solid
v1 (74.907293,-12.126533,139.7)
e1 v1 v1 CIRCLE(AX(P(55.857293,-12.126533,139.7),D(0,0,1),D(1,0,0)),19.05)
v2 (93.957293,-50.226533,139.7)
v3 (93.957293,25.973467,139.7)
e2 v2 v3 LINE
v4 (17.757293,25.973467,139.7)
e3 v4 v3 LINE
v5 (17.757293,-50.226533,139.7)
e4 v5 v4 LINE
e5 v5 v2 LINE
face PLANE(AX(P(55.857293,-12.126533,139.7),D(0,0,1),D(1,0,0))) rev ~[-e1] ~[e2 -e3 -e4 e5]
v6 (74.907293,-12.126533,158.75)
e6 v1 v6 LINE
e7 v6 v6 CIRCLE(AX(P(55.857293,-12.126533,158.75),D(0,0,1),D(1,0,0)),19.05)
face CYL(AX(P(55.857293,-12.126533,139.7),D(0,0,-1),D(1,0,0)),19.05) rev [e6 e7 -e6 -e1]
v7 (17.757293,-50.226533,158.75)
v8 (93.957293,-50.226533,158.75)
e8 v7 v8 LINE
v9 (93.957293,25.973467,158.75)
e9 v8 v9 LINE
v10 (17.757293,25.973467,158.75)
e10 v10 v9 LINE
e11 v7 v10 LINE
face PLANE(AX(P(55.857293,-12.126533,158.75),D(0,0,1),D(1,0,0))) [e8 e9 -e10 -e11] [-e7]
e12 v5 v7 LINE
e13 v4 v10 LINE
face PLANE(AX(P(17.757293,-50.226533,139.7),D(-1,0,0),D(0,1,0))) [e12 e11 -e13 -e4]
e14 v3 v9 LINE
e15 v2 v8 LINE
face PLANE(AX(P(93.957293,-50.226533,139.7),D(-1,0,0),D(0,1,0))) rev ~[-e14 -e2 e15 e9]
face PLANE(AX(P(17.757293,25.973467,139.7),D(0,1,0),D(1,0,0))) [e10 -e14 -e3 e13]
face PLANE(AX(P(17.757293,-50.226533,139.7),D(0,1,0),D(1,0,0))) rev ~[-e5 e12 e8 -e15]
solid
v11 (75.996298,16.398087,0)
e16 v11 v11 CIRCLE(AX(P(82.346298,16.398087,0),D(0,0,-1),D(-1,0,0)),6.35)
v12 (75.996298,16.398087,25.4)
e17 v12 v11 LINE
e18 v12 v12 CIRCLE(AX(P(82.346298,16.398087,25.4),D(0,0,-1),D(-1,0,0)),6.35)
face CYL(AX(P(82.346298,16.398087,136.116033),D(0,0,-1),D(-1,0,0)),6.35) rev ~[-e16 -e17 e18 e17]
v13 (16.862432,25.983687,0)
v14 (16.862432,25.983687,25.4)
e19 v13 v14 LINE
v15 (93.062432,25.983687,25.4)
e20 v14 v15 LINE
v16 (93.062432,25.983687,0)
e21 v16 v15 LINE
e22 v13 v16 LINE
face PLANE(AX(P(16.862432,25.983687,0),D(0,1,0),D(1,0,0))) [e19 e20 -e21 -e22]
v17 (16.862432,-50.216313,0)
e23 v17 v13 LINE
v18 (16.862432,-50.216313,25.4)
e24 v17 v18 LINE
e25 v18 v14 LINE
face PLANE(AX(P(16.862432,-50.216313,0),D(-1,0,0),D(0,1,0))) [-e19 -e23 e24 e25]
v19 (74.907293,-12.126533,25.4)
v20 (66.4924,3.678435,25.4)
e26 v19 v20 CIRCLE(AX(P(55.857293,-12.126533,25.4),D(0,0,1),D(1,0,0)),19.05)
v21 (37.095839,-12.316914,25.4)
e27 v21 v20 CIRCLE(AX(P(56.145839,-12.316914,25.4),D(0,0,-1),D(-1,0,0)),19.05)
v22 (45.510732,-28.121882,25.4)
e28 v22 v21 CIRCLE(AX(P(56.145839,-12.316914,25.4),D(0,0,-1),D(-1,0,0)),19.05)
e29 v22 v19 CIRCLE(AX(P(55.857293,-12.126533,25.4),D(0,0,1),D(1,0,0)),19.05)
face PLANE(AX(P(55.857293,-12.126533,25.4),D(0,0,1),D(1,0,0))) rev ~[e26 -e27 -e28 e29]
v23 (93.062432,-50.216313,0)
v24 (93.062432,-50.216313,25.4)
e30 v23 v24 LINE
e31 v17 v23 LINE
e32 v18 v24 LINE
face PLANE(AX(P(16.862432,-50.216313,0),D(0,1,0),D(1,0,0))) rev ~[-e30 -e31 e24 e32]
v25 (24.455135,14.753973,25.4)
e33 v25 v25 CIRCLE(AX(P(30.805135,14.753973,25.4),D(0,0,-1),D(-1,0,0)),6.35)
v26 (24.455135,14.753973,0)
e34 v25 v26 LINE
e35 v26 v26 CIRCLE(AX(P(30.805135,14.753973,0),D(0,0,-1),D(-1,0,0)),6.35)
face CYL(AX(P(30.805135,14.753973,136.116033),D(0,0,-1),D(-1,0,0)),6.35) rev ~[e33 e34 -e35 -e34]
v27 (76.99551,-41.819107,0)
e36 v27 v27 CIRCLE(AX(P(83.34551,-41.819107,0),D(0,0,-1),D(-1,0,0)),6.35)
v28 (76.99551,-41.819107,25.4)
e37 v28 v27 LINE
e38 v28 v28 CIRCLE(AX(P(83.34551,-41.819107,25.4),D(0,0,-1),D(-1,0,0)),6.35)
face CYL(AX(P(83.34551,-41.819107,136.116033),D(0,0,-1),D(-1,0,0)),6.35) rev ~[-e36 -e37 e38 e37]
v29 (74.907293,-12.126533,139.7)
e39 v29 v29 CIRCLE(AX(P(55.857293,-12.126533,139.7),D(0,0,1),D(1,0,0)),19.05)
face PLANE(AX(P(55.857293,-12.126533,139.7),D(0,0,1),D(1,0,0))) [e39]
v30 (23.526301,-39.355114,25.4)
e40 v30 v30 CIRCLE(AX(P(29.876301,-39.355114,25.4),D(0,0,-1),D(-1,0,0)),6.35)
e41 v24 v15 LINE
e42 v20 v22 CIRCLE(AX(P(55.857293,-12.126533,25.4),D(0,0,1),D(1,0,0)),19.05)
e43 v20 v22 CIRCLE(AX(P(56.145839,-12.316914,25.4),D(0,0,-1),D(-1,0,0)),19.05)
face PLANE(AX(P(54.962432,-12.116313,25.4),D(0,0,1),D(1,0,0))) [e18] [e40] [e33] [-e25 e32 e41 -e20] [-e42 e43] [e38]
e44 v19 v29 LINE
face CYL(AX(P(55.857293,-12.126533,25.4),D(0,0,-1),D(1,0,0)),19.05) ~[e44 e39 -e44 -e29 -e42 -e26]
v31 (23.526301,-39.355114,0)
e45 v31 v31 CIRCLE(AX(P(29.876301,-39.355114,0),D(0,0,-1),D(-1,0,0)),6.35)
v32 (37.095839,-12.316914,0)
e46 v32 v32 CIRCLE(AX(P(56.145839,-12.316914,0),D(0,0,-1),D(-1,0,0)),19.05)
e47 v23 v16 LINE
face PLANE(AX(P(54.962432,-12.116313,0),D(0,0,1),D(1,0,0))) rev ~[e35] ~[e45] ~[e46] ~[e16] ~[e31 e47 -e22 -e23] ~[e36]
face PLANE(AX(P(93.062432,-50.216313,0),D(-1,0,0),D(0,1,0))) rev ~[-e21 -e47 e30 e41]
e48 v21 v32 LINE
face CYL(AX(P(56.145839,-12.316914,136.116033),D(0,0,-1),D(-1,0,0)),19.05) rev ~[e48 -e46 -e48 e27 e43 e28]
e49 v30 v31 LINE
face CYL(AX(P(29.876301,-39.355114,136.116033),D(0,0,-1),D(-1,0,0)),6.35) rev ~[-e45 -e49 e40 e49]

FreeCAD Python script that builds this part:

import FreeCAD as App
import Part
import Sketcher
from FreeCAD import Vector
Q = App.Units.Quantity


def add_polygon(sketch, points):
    """Adds a closed chain of lines whose ends are joined by coincident constraints."""
    first, n = sketch.GeometryCount, len(points)
    for a, b in zip(points, points[1:] + points[:1]):
        sketch.addGeometry(Part.LineSegment(App.Vector(*a, 0), App.Vector(*b, 0)), False)
    for i in range(n):
        sketch.addConstraint(Sketcher.Constraint("Coincident", first + i, 2, first + (i + 1) % n, 1))

doc = App.newDocument("Part")
params = doc.addObject("Spreadsheet::Sheet", "Params")
for row, (alias, value) in enumerate([
    ("sketch1_width", "3 in"),
    ("pad1_length", "1 in"),
    ("sketch2_diameter", "1.5 in"),
    ("hole_diameter", "1.5 in"),
    ("sketch3_diameter", "0.5 in"),
    ("hole2_diameter", "0.5 in"),
    ("sketch4_diameter", "1.5 in"),
    ("pad2_length", "4.5 in"),
    ("sketch5_diameter", "1.5 in"),
    ("sketch5_width", "3 in"),
    ("pad3_length", "1 in"),
    ("sketch6_diameter", "1.5 in"),
    ("sketch6_width", "3 in"),
    ("pad4_length", "0.75 in"),
], start=1):
    params.set(f"A{row}", alias)
    params.set(f"B{row}", "=" + value)
    params.setAlias(f"B{row}", alias)

body = doc.addObject("PartDesign::Body", "Body")

# Sketch on XY plane
sketch1 = body.newObject("Sketcher::SketchObject", "Sketch")
sketch1.AttachmentSupport = (doc.getObject("XY_Plane"), [""])
sketch1.MapMode = "FlatFace"
add_polygon(sketch1, [(17, 26), (17, -50), (93, -50), (93, 26)])  # lines 0-3
sketch1.addConstraint([
    Sketcher.Constraint("Vertical", 0),
    Sketcher.Constraint("Horizontal", 1),
    Sketcher.Constraint("Vertical", 2),
    Sketcher.Constraint("Horizontal", 3),
    Sketcher.Constraint("Equal", 3, 0),
    Sketcher.Constraint("DistanceX", 1, 1, 1, 2, Q("3 in")),
    Sketcher.Constraint("DistanceX", -1, 1, 0, 2, 16.862432),
    Sketcher.Constraint("DistanceY", 0, 2, -1, 1, 50.216313),
])
sketch1.setExpression("Constraints[9]", "Params.sketch1_width")
pad1 = body.newObject("PartDesign::Pad", "Pad")
pad1.Profile = sketch1
pad1.setExpression("Length", "Params.pad1_length")

# Sketch on XY plane
sketch2 = body.newObject("Sketcher::SketchObject", "Sketch001")
sketch2.AttachmentSupport = (doc.getObject("XY_Plane"), [""])
sketch2.MapMode = "FlatFace"
sketch2.AttachmentOffset = App.Placement(Vector(0, 0, 1 * 25.4), App.Rotation())
sketch2.addGeometry(Part.Circle(Vector(56, -12, 0), Vector(0, 0, 1), 19), False)
sketch2.addConstraint([
    Sketcher.Constraint("Diameter", 0, Q("1.5 in")),
    Sketcher.Constraint("DistanceX", -1, 1, 0, 3, 56.145839),
    Sketcher.Constraint("DistanceY", 0, 3, -1, 1, 12.316914),
])
sketch2.setExpression("Constraints[0]", "Params.sketch2_diameter")
doc.recompute()
hole = body.newObject("PartDesign::Hole", "Hole")
hole.Profile = sketch2
hole.ThreadType = "None"
hole.setExpression("Diameter", "Params.hole_diameter")
hole.DepthType = "ThroughAll"

# Sketch on XY plane
sketch3 = body.newObject("Sketcher::SketchObject", "Sketch002")
sketch3.AttachmentSupport = (doc.getObject("XY_Plane"), [""])
sketch3.MapMode = "FlatFace"
sketch3.AttachmentOffset = App.Placement(Vector(0, 0, 1 * 25.4), App.Rotation())
sketch3.addGeometry([
    Part.Circle(Vector(83, -42, 0), Vector(0, 0, 1), 6),
    Part.Circle(Vector(30, -39, 0), Vector(0, 0, 1), 6),
    Part.Circle(Vector(31, 15, 0), Vector(0, 0, 1), 6),
    Part.Circle(Vector(82, 16, 0), Vector(0, 0, 1), 6),
], False)
sketch3.addConstraint([
    Sketcher.Constraint("Equal", 0, 1),
    Sketcher.Constraint("Equal", 1, 2),
    Sketcher.Constraint("Equal", 2, 3),
    Sketcher.Constraint("Diameter", 0, Q("0.5 in")),
    Sketcher.Constraint("DistanceX", -1, 1, 1, 3, 29.876301),
    Sketcher.Constraint("DistanceX", -1, 1, 3, 3, 82.346298),
    Sketcher.Constraint("DistanceY", 1, 3, 3, 3, 55.753201),
    Sketcher.Constraint("DistanceX", -1, 1, 0, 3, 83.34551),
    Sketcher.Constraint("DistanceY", 0, 3, 2, 3, 56.57308),
    Sketcher.Constraint("DistanceY", 0, 3, -1, 1, 41.819107),
    Sketcher.Constraint("DistanceY", 1, 3, -1, 1, 39.355114),
    Sketcher.Constraint("DistanceX", -1, 1, 2, 3, 30.805135),
])
sketch3.setExpression("Constraints[3]", "Params.sketch3_diameter")
doc.recompute()
hole2 = body.newObject("PartDesign::Hole", "Hole001")
hole2.Profile = sketch3
hole2.ThreadType = "None"
hole2.setExpression("Diameter", "Params.hole2_diameter")
hole2.DepthType = "ThroughAll"

# Sketch on XY plane
sketch4 = body.newObject("Sketcher::SketchObject", "Sketch003")
sketch4.AttachmentSupport = (doc.getObject("XY_Plane"), [""])
sketch4.MapMode = "FlatFace"
sketch4.AttachmentOffset = App.Placement(Vector(0, 0, 1 * 25.4), App.Rotation())
sketch4.addGeometry(Part.Circle(Vector(56, -12, 0), Vector(0, 0, 1), 19), False)
sketch4.addConstraint([
    Sketcher.Constraint("Diameter", 0, Q("1.5 in")),
    Sketcher.Constraint("DistanceX", -1, 1, 0, 3, 55.857293),
    Sketcher.Constraint("DistanceY", 0, 3, -1, 1, 12.126533),
])
sketch4.setExpression("Constraints[0]", "Params.sketch4_diameter")
pad2 = body.newObject("PartDesign::Pad", "Pad001")
pad2.Profile = sketch4
pad2.setExpression("Length", "Params.pad2_length")
body2 = doc.addObject("PartDesign::Body", "Body001")

# Sketch on XY plane
sketch5 = body2.newObject("Sketcher::SketchObject", "Sketch004")
sketch5.AttachmentSupport = (doc.getObject("XY_Plane001"), [""])
sketch5.MapMode = "FlatFace"
sketch5.AttachmentOffset = App.Placement(Vector(0, 0, 5.5 * 25.4), App.Rotation())
add_polygon(sketch5, [(18, 26), (18, -50), (94, -50), (94, 26)])  # lines 0-3
sketch5.addGeometry(Part.Circle(Vector(56, -12, 0), Vector(0, 0, 1), 19), False)  # 4
sketch5.addConstraint([
    Sketcher.Constraint("Vertical", 0),
    Sketcher.Constraint("Horizontal", 1),
    Sketcher.Constraint("Vertical", 2),
    Sketcher.Constraint("Horizontal", 3),
    Sketcher.Constraint("Equal", 3, 0),
    Sketcher.Constraint("Diameter", 4, Q("1.5 in")),
    Sketcher.Constraint("DistanceX", 1, 1, 1, 2, Q("3 in")),
    Sketcher.Constraint("DistanceX", 0, 2, 4, 3, Q("1.5 in")),
    Sketcher.Constraint("DistanceY", 0, 2, 4, 3, Q("1.5 in")),
    Sketcher.Constraint("DistanceX", -1, 1, 4, 3, 55.857293),
    Sketcher.Constraint("DistanceY", 4, 3, -1, 1, 12.126533),
])
sketch5.setExpression("Constraints[9]", "Params.sketch5_diameter")
sketch5.setExpression("Constraints[10]", "Params.sketch5_width")
pad3 = body2.newObject("PartDesign::Pad", "Pad002")
pad3.Profile = sketch5
pad3.setExpression("Length", "Params.pad3_length")
body3 = doc.addObject("PartDesign::Body", "Body002")

# Sketch on XY plane
sketch6 = body3.newObject("Sketcher::SketchObject", "Sketch005")
sketch6.AttachmentSupport = (doc.getObject("XY_Plane002"), [""])
sketch6.MapMode = "FlatFace"
sketch6.AttachmentOffset = App.Placement(Vector(0, 0, 5.5 * 25.4), App.Rotation())
add_polygon(sketch6, [(18, 26), (18, -50), (94, -50), (94, 26)])  # lines 0-3
sketch6.addGeometry(Part.Circle(Vector(56, -12, 0), Vector(0, 0, 1), 19), False)  # 4
sketch6.addConstraint([
    Sketcher.Constraint("Vertical", 0),
    Sketcher.Constraint("Horizontal", 1),
    Sketcher.Constraint("Vertical", 2),
    Sketcher.Constraint("Horizontal", 3),
    Sketcher.Constraint("Equal", 3, 0),
    Sketcher.Constraint("Diameter", 4, Q("1.5 in")),
    Sketcher.Constraint("DistanceX", 1, 1, 1, 2, Q("3 in")),
    Sketcher.Constraint("DistanceX", 0, 2, 4, 3, Q("1.5 in")),
    Sketcher.Constraint("DistanceY", 0, 2, 4, 3, Q("1.5 in")),
    Sketcher.Constraint("DistanceX", -1, 1, 4, 3, 55.857293),
    Sketcher.Constraint("DistanceY", 4, 3, -1, 1, 12.126533),
])
sketch6.setExpression("Constraints[9]", "Params.sketch6_diameter")
sketch6.setExpression("Constraints[10]", "Params.sketch6_width")
pad4 = body3.newObject("PartDesign::Pad", "Pad003")
pad4.Profile = sketch6
pad4.setExpression("Length", "Params.pad4_length")
body2.Visibility = False

doc.recompute()
